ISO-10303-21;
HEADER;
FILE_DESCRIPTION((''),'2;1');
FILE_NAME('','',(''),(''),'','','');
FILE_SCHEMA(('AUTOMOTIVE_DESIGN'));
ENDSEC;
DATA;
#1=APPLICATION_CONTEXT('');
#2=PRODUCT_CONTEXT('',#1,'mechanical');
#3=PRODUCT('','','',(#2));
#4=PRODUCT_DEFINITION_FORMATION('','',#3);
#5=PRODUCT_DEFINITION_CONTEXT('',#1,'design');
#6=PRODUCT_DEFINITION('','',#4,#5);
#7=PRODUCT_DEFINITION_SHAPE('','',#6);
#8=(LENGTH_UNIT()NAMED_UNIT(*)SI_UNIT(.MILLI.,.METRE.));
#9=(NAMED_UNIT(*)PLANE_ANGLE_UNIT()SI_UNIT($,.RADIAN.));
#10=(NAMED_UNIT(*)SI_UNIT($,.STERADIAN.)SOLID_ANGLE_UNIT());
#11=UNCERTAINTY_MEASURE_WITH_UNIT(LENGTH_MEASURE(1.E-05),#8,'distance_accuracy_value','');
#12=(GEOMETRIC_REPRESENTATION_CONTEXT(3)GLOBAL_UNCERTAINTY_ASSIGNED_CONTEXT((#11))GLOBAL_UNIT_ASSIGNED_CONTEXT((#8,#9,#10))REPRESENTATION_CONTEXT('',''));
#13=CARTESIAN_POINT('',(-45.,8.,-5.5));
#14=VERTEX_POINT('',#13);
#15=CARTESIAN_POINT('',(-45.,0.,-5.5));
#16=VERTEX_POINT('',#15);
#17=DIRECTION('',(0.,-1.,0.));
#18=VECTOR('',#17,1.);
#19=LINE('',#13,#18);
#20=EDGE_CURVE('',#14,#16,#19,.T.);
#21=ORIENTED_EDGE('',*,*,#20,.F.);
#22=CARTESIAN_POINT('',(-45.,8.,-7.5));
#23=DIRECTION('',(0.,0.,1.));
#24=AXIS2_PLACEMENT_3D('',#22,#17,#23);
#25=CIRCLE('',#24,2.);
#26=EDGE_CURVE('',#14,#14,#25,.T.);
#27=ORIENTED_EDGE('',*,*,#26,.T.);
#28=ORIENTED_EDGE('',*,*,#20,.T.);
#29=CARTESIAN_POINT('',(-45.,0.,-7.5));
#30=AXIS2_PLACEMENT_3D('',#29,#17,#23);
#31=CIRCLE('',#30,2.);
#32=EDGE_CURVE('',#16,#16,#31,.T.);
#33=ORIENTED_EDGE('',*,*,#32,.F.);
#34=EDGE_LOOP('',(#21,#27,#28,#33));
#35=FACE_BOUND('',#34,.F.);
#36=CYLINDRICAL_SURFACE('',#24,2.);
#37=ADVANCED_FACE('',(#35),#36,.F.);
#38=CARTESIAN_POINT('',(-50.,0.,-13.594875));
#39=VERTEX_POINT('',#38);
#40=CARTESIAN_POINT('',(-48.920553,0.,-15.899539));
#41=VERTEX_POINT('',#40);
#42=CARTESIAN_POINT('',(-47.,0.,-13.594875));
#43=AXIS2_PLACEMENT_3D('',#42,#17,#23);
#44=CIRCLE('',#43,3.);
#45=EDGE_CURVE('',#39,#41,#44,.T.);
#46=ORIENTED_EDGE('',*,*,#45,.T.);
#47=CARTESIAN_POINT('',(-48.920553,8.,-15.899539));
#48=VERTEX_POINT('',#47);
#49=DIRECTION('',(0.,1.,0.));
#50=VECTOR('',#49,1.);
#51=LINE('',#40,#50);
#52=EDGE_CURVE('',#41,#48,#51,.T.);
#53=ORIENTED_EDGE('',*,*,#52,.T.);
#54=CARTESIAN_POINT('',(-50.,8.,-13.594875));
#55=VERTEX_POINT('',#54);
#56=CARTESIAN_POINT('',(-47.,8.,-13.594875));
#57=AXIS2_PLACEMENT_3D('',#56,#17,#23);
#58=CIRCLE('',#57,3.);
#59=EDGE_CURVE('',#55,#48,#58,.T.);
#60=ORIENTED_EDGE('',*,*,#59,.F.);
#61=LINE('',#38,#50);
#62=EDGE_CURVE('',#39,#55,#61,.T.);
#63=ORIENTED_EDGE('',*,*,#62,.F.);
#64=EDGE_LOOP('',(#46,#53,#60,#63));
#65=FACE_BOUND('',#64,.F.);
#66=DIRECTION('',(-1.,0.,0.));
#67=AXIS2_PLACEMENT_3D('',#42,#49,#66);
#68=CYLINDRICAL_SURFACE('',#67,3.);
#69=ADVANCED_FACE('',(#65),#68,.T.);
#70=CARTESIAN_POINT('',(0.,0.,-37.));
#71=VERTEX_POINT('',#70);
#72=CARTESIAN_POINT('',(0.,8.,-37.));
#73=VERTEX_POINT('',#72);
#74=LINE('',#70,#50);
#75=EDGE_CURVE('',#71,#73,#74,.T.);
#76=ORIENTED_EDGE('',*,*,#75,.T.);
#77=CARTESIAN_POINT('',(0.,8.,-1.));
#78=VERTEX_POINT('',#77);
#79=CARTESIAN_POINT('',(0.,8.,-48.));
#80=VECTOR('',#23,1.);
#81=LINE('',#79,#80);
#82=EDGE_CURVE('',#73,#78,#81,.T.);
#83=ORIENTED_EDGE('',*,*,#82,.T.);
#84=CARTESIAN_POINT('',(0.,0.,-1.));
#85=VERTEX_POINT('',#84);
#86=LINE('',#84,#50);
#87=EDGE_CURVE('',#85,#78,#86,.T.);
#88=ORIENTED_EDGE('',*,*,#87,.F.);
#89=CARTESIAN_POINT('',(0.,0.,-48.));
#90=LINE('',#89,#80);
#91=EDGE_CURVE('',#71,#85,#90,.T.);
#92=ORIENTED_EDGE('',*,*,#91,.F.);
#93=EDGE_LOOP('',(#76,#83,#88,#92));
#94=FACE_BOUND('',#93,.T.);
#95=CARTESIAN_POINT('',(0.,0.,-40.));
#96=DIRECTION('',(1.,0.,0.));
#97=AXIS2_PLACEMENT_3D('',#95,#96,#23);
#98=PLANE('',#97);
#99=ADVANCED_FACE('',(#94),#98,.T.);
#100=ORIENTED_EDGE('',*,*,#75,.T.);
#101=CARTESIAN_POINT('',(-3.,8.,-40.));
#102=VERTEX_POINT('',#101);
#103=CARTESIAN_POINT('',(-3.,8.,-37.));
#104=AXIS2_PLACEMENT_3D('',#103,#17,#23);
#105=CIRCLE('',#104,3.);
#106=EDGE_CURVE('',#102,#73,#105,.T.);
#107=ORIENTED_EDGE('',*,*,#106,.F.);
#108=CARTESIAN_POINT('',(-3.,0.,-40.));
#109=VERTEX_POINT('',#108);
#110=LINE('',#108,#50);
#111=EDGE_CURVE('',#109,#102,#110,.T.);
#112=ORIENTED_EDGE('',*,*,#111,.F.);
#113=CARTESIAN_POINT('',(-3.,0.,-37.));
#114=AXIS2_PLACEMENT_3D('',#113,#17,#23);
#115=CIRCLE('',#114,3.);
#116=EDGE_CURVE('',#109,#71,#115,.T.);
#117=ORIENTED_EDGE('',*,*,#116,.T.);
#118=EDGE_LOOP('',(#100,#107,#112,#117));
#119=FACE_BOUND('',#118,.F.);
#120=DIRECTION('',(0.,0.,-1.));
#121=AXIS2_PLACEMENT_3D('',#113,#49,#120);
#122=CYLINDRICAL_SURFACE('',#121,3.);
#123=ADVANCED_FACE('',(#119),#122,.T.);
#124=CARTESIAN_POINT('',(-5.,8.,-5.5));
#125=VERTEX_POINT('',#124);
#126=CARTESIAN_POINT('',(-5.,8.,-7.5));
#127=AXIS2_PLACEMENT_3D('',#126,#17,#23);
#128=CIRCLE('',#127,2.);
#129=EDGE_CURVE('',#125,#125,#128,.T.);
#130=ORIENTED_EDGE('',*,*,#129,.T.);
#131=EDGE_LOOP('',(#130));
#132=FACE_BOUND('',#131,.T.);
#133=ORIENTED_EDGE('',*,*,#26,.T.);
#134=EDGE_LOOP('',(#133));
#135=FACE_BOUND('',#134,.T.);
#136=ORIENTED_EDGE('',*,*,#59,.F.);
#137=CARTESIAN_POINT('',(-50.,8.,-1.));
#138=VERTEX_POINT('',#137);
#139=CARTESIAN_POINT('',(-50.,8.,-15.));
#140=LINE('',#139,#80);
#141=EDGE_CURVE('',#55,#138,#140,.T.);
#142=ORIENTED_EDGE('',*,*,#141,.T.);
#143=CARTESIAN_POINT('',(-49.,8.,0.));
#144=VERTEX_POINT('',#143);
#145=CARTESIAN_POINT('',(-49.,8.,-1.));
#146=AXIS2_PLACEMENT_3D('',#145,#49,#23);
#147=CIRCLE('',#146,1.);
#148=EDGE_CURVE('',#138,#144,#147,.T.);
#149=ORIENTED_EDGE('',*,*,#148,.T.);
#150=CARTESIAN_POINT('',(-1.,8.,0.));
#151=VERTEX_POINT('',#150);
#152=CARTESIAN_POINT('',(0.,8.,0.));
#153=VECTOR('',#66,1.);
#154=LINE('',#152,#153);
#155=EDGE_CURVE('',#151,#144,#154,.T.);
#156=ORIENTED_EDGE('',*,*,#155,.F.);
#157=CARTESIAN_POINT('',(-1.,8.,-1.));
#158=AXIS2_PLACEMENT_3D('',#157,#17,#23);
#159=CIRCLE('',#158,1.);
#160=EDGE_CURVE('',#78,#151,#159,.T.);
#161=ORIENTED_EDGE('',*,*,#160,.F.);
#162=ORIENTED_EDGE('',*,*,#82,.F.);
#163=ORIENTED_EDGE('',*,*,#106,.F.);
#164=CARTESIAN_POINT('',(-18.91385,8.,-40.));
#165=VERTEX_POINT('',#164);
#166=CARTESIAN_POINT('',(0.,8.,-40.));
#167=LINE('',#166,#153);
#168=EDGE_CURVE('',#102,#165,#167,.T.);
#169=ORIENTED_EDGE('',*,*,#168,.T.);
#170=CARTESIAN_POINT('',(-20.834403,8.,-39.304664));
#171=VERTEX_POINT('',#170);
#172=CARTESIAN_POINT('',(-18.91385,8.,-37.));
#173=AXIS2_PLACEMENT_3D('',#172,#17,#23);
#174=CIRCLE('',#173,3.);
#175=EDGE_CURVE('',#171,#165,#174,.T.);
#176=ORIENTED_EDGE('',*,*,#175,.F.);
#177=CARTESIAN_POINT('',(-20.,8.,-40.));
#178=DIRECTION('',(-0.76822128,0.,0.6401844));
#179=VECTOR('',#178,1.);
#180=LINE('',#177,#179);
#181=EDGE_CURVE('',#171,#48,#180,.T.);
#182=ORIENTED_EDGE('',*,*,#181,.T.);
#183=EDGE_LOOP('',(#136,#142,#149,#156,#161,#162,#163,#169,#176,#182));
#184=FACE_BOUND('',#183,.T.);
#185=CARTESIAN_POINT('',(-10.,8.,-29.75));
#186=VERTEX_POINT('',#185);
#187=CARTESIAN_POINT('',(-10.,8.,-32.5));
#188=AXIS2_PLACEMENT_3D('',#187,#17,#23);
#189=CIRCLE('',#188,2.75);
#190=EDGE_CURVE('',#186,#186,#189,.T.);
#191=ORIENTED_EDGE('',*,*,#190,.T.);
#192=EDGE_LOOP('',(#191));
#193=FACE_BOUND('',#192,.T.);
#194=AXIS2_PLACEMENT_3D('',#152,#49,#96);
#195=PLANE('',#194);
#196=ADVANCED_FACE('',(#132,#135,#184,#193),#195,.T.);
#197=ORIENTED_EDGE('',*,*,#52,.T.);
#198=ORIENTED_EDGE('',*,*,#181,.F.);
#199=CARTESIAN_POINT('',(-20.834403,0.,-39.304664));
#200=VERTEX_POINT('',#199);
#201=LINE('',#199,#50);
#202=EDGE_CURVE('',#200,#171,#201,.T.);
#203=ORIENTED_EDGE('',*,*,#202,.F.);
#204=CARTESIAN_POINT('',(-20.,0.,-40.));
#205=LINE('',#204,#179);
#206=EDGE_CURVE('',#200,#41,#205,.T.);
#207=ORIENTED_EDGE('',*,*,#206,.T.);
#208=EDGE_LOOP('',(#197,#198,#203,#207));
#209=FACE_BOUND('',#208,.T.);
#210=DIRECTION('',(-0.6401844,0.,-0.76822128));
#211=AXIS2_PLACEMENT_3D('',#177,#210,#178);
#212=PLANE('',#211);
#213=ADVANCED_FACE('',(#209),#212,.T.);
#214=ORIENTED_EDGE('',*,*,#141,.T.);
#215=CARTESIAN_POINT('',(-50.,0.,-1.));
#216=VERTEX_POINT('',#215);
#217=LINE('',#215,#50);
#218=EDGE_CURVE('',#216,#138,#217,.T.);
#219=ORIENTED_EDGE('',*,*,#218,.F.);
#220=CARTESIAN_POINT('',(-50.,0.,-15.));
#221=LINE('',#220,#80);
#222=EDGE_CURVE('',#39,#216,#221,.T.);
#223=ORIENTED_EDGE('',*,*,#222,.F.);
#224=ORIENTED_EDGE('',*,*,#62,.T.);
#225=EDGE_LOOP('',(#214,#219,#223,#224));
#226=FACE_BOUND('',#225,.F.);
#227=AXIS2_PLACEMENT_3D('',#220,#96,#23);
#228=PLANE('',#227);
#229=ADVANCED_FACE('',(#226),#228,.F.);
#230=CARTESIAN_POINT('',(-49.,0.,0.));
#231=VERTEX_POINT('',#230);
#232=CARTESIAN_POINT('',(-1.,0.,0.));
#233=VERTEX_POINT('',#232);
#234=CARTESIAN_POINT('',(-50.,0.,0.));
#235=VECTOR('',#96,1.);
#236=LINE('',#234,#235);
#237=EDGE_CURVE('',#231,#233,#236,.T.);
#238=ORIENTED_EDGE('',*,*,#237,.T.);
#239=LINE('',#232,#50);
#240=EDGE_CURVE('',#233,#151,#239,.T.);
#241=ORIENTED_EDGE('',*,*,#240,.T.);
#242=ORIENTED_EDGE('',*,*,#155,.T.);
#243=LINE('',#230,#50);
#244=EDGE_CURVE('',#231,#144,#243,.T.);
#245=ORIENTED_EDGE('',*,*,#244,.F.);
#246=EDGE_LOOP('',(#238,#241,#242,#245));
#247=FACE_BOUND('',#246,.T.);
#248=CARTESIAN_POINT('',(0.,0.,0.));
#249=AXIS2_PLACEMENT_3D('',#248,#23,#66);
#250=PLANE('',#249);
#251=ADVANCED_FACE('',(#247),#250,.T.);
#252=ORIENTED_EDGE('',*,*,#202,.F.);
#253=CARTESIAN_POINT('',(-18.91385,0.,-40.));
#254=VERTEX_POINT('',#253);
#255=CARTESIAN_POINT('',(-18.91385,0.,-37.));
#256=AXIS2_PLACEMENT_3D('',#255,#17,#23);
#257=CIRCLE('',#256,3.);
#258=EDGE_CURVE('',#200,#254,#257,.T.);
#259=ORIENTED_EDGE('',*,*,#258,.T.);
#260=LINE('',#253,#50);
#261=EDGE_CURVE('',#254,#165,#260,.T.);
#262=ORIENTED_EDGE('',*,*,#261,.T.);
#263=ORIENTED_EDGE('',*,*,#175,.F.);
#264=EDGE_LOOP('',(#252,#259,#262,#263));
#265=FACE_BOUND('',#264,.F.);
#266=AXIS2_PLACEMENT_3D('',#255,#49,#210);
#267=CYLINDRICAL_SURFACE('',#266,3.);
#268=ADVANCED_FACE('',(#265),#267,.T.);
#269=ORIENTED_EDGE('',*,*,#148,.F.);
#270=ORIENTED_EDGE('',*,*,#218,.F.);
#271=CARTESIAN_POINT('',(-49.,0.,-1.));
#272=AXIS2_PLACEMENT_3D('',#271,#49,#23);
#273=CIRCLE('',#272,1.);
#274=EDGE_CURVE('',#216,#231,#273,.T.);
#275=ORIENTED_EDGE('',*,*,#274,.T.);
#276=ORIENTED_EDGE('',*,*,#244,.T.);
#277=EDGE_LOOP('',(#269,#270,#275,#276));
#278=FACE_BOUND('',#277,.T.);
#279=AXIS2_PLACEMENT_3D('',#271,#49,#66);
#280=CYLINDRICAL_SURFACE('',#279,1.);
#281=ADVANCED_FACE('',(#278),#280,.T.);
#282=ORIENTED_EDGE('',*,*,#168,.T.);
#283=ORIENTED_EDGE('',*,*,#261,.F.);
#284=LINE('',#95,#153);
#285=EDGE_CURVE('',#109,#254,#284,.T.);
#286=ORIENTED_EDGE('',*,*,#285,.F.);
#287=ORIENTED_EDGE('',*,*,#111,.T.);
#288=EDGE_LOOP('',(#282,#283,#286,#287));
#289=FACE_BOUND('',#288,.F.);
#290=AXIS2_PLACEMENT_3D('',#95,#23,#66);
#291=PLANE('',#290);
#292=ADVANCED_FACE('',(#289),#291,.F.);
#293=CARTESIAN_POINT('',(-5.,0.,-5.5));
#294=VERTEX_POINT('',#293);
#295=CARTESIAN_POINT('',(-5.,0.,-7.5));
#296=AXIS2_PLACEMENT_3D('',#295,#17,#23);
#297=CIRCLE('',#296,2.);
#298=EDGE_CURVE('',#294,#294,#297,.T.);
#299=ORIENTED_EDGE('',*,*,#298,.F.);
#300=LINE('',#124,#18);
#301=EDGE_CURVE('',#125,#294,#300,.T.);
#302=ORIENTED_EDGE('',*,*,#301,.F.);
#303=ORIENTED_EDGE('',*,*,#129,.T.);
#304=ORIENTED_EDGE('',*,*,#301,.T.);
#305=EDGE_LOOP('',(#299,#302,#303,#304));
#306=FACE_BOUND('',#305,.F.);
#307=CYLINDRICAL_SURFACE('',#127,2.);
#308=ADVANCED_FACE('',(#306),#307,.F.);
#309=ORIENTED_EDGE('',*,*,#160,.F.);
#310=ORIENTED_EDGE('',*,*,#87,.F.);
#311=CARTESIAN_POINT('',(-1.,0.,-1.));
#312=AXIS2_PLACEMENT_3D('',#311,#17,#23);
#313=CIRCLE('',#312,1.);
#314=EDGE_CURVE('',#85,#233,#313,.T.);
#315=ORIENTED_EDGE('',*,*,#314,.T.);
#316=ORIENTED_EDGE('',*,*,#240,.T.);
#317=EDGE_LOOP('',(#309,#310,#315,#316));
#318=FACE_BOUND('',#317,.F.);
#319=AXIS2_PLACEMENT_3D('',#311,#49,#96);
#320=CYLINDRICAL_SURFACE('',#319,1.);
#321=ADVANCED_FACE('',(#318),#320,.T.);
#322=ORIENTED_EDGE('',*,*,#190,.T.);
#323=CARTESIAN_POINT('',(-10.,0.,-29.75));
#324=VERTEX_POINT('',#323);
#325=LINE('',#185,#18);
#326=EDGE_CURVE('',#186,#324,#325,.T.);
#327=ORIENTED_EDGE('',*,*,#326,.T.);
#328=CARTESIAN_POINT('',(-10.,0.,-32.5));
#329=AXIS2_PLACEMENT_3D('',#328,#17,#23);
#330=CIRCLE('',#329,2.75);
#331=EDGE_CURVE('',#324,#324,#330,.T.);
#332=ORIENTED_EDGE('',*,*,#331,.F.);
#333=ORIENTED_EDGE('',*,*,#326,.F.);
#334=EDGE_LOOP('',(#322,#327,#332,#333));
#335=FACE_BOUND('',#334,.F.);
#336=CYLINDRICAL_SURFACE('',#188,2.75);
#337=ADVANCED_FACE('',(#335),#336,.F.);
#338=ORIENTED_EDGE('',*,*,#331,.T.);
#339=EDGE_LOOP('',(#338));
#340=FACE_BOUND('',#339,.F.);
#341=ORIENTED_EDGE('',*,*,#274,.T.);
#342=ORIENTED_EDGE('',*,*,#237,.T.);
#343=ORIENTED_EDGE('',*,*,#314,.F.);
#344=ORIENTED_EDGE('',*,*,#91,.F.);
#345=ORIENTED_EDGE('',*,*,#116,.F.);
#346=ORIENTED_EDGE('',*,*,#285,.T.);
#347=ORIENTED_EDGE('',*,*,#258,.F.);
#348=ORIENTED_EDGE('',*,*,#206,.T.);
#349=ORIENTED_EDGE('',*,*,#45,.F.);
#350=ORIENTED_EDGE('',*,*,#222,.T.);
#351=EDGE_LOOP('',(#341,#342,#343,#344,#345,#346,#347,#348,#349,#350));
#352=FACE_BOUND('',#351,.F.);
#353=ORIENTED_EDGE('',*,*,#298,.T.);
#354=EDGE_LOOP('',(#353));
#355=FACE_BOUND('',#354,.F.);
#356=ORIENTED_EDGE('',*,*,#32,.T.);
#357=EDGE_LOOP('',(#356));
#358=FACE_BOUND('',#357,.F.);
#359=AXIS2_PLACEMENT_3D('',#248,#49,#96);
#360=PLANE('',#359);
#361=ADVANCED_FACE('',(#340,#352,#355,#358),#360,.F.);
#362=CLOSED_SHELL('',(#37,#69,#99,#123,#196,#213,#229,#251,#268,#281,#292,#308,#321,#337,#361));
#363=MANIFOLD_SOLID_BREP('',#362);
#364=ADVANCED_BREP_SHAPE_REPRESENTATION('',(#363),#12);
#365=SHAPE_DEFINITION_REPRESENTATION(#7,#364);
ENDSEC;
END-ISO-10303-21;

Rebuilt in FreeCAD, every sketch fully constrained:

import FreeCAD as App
import Part
import Sketcher
Q = App.Units.Quantity


def edges_at(feature, points):
    """Names of the edges that pass closest to the given points."""
    edges = feature.Shape.Edges
    near = lambda p: min(range(len(edges)), key=lambda i: edges[i].distToShape(Part.Vertex(*p))[0])
    return sorted({f"Edge{near(p) + 1}" for p in points})


def add_polygon(sketch, points):
    """Adds a closed chain of lines whose ends are joined by coincident constraints."""
    first, n = sketch.GeometryCount, len(points)
    for a, b in zip(points, points[1:] + points[:1]):
        sketch.addGeometry(Part.LineSegment(App.Vector(*a, 0), App.Vector(*b, 0)), False)
    for i in range(n):
        sketch.addConstraint(Sketcher.Constraint("Coincident", first + i, 2, first + (i + 1) % n, 1))

doc = App.newDocument("Part")
params = doc.addObject("Spreadsheet::Sheet", "Params")
for row, (alias, value) in enumerate([
    ("sketch1_width", "20 mm"),
    ("sketch1_width2", "50 mm"),
    ("sketch1_height", "40 mm"),
    ("sketch1_height2", "15 mm"),
    ("pad1_length", "8 mm"),
    ("sketch2_diameter", "4 mm"),
    ("hole_diameter", "4 mm"),
    ("sketch3_diameter", "5.5 mm"),
    ("hole2_diameter", "5.5 mm"),
    ("sketch4_width", "30 mm"),
    ("sketch4_height", "25 mm"),
    ("pad2_length", "8 mm"),
    ("fillet_radius", "1 mm"),
    ("fillet2_radius", "3 mm"),
], start=1):
    params.set(f"A{row}", alias)
    params.set(f"B{row}", "=" + value)
    params.setAlias(f"B{row}", alias)

body = doc.addObject("PartDesign::Body", "Body")

# Sketch on XZ plane
sketch1 = doc.addObject("Sketcher::SketchObject", "Sketch")
body.addObject(sketch1)
sketch1.AttachmentSupport = (doc.XZ_Plane, [""])
sketch1.MapMode = "FlatFace"
add_polygon(sketch1, [(0, 0), (0, -40), (-20, -40), (-20, -15), (-50, -15), (-50, 0)])  # lines 0-5
sketch1.addConstraint([
    Sketcher.Constraint("Vertical", 0),
    Sketcher.Constraint("Horizontal", 1),
    Sketcher.Constraint("Vertical", 2),
    Sketcher.Constraint("Horizontal", 3),
    Sketcher.Constraint("Vertical", 4),
    Sketcher.Constraint("Horizontal", 5),
    Sketcher.Constraint("Coincident", 5, 2, -1, 1),
    Sketcher.Constraint("DistanceX", 1, 2, 1, 1, Q("20 mm")),
    Sketcher.Constraint("DistanceX", 5, 1, 5, 2, Q("50 mm")),
    Sketcher.Constraint("DistanceY", 0, 2, 0, 1, Q("40 mm")),
    Sketcher.Constraint("DistanceY", 4, 1, 4, 2, Q("15 mm")),
])
sketch1.setExpression("Constraints[13]", "Params.sketch1_width")
sketch1.setExpression("Constraints[14]", "Params.sketch1_width2")
sketch1.setExpression("Constraints[15]", "Params.sketch1_height")
sketch1.setExpression("Constraints[16]", "Params.sketch1_height2")
pad1 = doc.addObject("PartDesign::Pad", "Pad")
body.addObject(pad1)
pad1.Profile = sketch1
pad1.setExpression("Length", "Params.pad1_length")
pad1.Reversed = True

# Sketch on XZ plane
sketch2 = doc.addObject("Sketcher::SketchObject", "Sketch001")
body.addObject(sketch2)
sketch2.AttachmentSupport = (doc.XZ_Plane, [""])
sketch2.MapMode = "FlatFace"
sketch2.AttachmentOffset = App.Placement(App.Vector(0, 0, -8), App.Rotation())
sketch2.addGeometry([
    Part.Circle(App.Vector(-45, -7.5, 0), App.Vector(0, 0, 1), 2),
    Part.Circle(App.Vector(-5, -7.5, 0), App.Vector(0, 0, 1), 2),
], False)
sketch2.addConstraint([
    Sketcher.Constraint("Equal", 0, 1),
    Sketcher.Constraint("Horizontal", 0, 3, 1, 3),
    Sketcher.Constraint("Diameter", 0, Q("4 mm")),
    Sketcher.Constraint("DistanceX", 0, 3, -1, 1, Q("45 mm")),
    Sketcher.Constraint("DistanceX", 1, 3, -1, 1, Q("5 mm")),
    Sketcher.Constraint("DistanceY", 0, 3, -1, 1, Q("7.5 mm")),
])
sketch2.setExpression("Constraints[2]", "Params.sketch2_diameter")
doc.recompute()
hole = doc.addObject("PartDesign::Hole", "Hole")
body.addObject(hole)
hole.Profile = sketch2
hole.ThreadType = "None"
hole.setExpression("Diameter", "Params.hole_diameter")
hole.DepthType = "ThroughAll"
hole.Reversed = True

# Sketch on XZ plane
sketch3 = doc.addObject("Sketcher::SketchObject", "Sketch002")
body.addObject(sketch3)
sketch3.AttachmentSupport = (doc.XZ_Plane, [""])
sketch3.MapMode = "FlatFace"
sketch3.AttachmentOffset = App.Placement(App.Vector(0, 0, -8), App.Rotation())
sketch3.addGeometry(Part.Circle(App.Vector(-10, -32.5, 0), App.Vector(0, 0, 1), 2.8), False)
sketch3.addConstraint([
    Sketcher.Constraint("Diameter", 0, Q("5.5 mm")),
    Sketcher.Constraint("DistanceX", 0, 3, -1, 1, Q("10 mm")),
    Sketcher.Constraint("DistanceY", 0, 3, -1, 1, Q("32.5 mm")),
])
sketch3.setExpression("Constraints[0]", "Params.sketch3_diameter")
doc.recompute()
hole2 = doc.addObject("PartDesign::Hole", "Hole001")
body.addObject(hole2)
hole2.Profile = sketch3
hole2.ThreadType = "None"
hole2.setExpression("Diameter", "Params.hole2_diameter")
hole2.DepthType = "ThroughAll"
hole2.Reversed = True

# Sketch on XZ plane
sketch4 = doc.addObject("Sketcher::SketchObject", "Sketch003")
body.addObject(sketch4)
sketch4.AttachmentSupport = (doc.XZ_Plane, [""])
sketch4.MapMode = "FlatFace"
sketch4.AttachmentOffset = App.Placement(App.Vector(0, 0, -8), App.Rotation())
add_polygon(sketch4, [(-20, -15), (-20, -40), (-50, -15)])  # lines 0-2
sketch4.addConstraint([
    Sketcher.Constraint("Vertical", 0),
    Sketcher.Constraint("Horizontal", 2),
    Sketcher.Constraint("DistanceX", 2, 1, 2, 2, Q("30 mm")),
    Sketcher.Constraint("DistanceY", 0, 2, 0, 1, Q("25 mm")),
    Sketcher.Constraint("DistanceX", 0, 2, -1, 1, Q("20 mm")),
    Sketcher.Constraint("DistanceY", 0, 2, -1, 1, Q("40 mm")),
])
sketch4.setExpression("Constraints[5]", "Params.sketch4_width")
sketch4.setExpression("Constraints[6]", "Params.sketch4_height")
pad2 = doc.addObject("PartDesign::Pad", "Pad001")
body.addObject(pad2)
pad2.Profile = sketch4
pad2.setExpression("Length", "Params.pad2_length")
doc.recompute()

fillet = doc.addObject("PartDesign::Fillet", "Fillet")
body.addObject(fillet)
fillet.Base = (pad2, edges_at(pad2, [(0, 4, 0), (-50, 4, 0)]))
fillet.setExpression("Radius", "Params.fillet_radius")
doc.recompute()

fillet2 = doc.addObject("PartDesign::Fillet", "Fillet001")
body.addObject(fillet2)
fillet2.Base = (fillet, edges_at(fillet, [(0, 4, -40), (-20, 4, -40), (-50, 4, -15)]))
fillet2.setExpression("Radius", "Params.fillet2_radius")

doc.recompute()
